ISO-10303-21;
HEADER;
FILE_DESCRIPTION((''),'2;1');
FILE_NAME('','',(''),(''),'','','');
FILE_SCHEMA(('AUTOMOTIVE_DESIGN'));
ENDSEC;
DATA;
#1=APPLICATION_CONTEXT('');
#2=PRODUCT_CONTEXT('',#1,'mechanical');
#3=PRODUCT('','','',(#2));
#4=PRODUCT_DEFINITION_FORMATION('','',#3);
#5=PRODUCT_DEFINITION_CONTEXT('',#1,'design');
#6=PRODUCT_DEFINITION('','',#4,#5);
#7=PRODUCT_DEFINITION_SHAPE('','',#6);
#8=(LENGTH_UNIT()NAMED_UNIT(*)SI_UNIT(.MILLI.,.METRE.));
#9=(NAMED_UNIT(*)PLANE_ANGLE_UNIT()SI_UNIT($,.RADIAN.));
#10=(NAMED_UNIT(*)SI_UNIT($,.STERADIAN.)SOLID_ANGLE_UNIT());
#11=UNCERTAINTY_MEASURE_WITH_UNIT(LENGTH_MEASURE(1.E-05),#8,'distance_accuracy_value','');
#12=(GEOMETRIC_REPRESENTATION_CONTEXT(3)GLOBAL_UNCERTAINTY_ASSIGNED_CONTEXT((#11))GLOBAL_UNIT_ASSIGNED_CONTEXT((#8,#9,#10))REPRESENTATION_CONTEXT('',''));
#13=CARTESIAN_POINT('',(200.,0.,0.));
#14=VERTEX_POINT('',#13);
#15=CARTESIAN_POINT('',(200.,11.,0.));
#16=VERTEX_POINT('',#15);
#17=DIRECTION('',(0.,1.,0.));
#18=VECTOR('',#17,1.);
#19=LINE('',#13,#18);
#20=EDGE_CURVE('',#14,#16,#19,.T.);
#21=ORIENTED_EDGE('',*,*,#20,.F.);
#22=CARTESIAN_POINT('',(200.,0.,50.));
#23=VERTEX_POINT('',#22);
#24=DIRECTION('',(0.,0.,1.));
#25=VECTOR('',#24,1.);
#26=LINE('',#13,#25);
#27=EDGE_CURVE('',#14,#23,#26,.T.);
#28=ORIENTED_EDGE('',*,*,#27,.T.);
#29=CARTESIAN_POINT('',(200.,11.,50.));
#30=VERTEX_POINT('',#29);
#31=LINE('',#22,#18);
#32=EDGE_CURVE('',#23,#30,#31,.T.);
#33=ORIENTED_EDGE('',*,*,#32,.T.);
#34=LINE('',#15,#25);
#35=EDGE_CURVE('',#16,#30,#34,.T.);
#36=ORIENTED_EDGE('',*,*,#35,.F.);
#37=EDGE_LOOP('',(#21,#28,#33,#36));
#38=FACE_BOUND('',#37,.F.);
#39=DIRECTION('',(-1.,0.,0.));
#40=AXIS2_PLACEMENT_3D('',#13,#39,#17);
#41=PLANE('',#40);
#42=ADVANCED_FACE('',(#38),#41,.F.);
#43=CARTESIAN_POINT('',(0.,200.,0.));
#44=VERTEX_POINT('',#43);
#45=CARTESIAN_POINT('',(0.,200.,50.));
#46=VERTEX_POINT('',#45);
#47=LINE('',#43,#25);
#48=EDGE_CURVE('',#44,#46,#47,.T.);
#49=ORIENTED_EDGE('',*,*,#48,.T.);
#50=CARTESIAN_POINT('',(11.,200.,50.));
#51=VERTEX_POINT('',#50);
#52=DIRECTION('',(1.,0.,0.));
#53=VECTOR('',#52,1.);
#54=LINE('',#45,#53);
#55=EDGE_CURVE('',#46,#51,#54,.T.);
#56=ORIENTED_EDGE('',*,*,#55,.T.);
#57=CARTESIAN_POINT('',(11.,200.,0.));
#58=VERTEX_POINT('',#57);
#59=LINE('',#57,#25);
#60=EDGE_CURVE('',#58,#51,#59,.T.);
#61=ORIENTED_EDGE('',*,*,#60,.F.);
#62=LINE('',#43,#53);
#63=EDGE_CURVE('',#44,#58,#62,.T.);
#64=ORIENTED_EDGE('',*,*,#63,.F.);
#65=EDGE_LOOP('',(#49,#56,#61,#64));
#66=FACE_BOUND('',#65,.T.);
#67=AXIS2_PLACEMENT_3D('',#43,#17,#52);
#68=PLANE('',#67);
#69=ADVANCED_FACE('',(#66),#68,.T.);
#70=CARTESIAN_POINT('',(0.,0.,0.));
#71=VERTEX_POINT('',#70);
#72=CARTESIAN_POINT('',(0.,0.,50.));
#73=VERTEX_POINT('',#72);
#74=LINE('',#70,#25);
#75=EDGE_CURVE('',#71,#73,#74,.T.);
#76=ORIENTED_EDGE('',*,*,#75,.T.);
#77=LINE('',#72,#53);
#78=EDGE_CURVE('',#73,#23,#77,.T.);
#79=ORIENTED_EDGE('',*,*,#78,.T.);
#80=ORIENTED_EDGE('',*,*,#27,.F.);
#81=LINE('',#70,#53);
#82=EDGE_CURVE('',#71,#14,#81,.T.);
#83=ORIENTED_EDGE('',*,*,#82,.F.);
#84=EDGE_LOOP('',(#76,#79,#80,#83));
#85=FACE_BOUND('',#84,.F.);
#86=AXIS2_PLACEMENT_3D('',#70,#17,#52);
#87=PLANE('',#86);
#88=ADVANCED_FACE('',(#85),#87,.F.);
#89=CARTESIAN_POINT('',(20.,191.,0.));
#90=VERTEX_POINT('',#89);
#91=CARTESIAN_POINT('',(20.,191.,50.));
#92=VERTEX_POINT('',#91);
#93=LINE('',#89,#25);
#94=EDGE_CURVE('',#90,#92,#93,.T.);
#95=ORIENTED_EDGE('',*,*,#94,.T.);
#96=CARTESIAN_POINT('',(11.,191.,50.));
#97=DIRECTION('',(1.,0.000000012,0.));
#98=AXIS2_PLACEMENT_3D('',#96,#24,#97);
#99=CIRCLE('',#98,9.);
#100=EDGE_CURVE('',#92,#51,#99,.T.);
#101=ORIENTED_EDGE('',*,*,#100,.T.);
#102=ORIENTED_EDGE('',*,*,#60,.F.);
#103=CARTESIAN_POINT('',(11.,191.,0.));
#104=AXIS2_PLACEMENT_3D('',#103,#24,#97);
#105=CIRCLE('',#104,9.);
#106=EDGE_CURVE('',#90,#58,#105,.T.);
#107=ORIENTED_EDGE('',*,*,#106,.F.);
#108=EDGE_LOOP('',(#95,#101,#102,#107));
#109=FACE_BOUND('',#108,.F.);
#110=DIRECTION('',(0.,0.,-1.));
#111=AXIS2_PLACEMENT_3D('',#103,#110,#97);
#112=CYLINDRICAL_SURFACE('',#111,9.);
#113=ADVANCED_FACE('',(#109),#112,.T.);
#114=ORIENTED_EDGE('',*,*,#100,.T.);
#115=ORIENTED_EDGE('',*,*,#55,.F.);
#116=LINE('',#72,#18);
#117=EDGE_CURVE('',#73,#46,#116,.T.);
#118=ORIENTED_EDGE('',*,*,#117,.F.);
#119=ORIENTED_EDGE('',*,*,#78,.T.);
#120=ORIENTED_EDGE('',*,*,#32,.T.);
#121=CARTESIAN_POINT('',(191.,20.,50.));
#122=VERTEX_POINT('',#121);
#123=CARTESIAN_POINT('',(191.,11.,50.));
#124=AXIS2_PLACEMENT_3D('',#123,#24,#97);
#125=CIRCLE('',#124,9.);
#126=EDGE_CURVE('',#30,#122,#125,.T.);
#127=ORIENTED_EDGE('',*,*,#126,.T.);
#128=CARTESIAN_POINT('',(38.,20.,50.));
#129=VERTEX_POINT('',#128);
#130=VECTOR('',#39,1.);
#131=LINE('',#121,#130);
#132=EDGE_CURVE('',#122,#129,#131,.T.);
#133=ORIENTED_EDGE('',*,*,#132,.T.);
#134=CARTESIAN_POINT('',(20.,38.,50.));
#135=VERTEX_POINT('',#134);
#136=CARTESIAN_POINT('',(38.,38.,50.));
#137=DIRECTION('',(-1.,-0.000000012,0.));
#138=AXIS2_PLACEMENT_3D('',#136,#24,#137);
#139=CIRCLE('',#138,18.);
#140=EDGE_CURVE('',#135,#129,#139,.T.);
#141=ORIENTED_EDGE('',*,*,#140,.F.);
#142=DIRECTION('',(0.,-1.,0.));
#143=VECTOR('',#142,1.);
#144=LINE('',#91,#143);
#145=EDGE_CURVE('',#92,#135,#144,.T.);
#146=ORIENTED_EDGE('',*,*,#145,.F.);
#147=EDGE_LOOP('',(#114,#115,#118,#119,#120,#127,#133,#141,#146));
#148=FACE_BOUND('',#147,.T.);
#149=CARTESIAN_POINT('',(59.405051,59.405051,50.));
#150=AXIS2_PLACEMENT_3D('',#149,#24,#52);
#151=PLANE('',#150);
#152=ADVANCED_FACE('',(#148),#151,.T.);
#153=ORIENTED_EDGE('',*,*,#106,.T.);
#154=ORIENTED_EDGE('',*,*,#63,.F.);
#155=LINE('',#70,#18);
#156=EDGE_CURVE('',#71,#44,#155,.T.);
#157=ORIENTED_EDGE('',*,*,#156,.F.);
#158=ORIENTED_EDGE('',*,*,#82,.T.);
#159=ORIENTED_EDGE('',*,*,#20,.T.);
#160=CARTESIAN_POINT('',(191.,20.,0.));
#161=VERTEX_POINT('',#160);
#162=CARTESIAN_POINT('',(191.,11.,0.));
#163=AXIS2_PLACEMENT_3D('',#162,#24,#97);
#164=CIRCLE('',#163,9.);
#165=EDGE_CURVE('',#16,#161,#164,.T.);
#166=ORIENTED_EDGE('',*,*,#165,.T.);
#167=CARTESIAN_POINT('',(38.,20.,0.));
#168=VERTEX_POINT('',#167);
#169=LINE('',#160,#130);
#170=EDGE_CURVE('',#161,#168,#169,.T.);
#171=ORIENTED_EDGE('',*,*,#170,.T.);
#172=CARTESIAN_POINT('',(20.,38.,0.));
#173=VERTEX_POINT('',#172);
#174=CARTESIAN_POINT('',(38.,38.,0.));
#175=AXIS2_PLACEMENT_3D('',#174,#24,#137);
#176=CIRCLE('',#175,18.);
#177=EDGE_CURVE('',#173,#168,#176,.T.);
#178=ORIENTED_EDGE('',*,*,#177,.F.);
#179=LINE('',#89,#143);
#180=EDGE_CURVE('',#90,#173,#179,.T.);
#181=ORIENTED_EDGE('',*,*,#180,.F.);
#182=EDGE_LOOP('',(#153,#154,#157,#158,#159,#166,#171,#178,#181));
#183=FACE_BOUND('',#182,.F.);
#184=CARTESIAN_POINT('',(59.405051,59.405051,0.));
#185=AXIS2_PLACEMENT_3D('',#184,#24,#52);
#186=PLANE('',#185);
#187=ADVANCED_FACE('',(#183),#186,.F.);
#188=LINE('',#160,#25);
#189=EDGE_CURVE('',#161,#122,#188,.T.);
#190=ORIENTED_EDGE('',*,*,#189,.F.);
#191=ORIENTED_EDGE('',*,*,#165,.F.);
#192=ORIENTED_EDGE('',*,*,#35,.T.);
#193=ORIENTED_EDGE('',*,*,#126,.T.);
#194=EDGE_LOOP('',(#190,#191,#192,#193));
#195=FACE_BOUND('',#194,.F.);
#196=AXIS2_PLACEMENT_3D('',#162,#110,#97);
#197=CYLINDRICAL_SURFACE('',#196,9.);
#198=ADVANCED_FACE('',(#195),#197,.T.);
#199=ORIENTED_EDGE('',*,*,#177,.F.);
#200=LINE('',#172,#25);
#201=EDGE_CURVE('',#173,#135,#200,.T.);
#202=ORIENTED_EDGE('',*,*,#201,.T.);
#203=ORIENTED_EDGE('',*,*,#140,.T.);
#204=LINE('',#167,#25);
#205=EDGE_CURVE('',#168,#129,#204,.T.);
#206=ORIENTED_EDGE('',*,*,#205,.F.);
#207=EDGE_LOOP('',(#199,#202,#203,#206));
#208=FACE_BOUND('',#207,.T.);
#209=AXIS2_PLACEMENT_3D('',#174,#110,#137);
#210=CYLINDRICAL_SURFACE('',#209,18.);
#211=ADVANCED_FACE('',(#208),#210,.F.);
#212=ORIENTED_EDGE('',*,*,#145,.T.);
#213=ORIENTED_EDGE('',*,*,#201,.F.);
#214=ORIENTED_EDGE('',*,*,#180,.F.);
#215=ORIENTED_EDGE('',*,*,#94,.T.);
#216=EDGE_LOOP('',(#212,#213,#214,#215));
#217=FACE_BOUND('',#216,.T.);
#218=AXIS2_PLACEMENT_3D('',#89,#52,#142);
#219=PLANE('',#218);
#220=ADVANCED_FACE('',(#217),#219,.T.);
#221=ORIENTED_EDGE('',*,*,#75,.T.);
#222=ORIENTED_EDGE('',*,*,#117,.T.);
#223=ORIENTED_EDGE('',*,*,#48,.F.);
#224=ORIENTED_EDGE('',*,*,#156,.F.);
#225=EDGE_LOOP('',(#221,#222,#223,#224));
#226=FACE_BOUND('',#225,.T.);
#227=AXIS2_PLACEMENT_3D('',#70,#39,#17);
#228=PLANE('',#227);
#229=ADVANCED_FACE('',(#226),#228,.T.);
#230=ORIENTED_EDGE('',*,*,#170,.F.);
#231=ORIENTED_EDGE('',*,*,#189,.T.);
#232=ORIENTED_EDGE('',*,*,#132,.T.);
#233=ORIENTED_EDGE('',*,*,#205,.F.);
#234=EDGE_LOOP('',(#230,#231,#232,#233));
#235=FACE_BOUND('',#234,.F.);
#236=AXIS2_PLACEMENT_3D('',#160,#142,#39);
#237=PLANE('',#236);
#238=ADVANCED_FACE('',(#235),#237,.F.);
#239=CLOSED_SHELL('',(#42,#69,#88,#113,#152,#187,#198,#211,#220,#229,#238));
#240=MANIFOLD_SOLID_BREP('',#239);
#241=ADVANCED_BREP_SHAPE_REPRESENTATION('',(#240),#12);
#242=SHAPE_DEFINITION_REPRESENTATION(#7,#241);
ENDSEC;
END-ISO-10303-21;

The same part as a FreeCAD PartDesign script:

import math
import FreeCAD as App
import Part
import Sketcher
from FreeCAD import Vector
Q = App.Units.Quantity

doc = App.newDocument("Part")
body = doc.addObject("PartDesign::Body", "Body")

# Sketch on XY plane
sketch1 = doc.addObject("Sketcher::SketchObject", "Sketch")
body.addObject(sketch1)
sketch1.AttachmentSupport = (doc.XY_Plane, [""])
sketch1.MapMode = "FlatFace"
sketch1.addGeometry([
    Part.LineSegment(Vector(0, 0, 0), Vector(200, 0, 0)),  # 0
    Part.LineSegment(Vector(200, 0, 0), Vector(200, 11, 0)),  # 1
    Part.ArcOfCircle(Part.Circle(Vector(191, 11, 0), Vector(0, 0, 1), 9), math.radians(0), math.radians(90)),  # 2
    Part.LineSegment(Vector(191, 20, 0), Vector(38, 20, 0)),  # 3
    Part.ArcOfCircle(Part.Circle(Vector(38, 38, 0), Vector(0, 0, 1), 18), math.radians(-180), math.radians(-90)),  # 4
    Part.LineSegment(Vector(20, 38, 0), Vector(20, 191, 0)),  # 5
    Part.ArcOfCircle(Part.Circle(Vector(11, 191, 0), Vector(0, 0, 1), 9), math.radians(0), math.radians(90)),  # 6
    Part.LineSegment(Vector(11, 200, 0), Vector(0, 200, 0)),  # 7
    Part.LineSegment(Vector(0, 200, 0), Vector(0, 0, 0)),  # 8
], False)
sketch1.addConstraint([
    Sketcher.Constraint("Coincident", 0, 2, 1, 1),
    Sketcher.Constraint("Tangent", 1, 2, 2, 1),
    Sketcher.Constraint("Tangent", 2, 2, 3, 1),
    Sketcher.Constraint("Tangent", 3, 2, 4, 2),
    Sketcher.Constraint("Tangent", 4, 1, 5, 1),
    Sketcher.Constraint("Tangent", 5, 2, 6, 1),
    Sketcher.Constraint("Tangent", 6, 2, 7, 1),
    Sketcher.Constraint("Coincident", 7, 2, 8, 1),
    Sketcher.Constraint("Coincident", 8, 2, 0, 1),
    Sketcher.Constraint("Horizontal", 0),
    Sketcher.Constraint("Vertical", 1),
    Sketcher.Constraint("Horizontal", 3),
    Sketcher.Constraint("Vertical", 5),
    Sketcher.Constraint("Horizontal", 7),
    Sketcher.Constraint("Vertical", 8),
    Sketcher.Constraint("Coincident", 8, 2, -1, 1),
    Sketcher.Constraint("Equal", 2, 6),
    Sketcher.Constraint("Equal", 7, 1),
    Sketcher.Constraint("Equal", 3, 5),
    Sketcher.Constraint("Radius", 2, Q("9 mm")),
    Sketcher.Constraint("Radius", 4, Q("18 mm")),
    Sketcher.Constraint("DistanceX", 0, 1, 0, 2, Q("200 mm")),
    Sketcher.Constraint("DistanceX", 3, 2, 3, 1, Q("153 mm")),
])
pad1 = doc.addObject("PartDesign::Pad", "Pad")
body.addObject(pad1)
pad1.Profile = sketch1
pad1.Length = 50

doc.recompute()
